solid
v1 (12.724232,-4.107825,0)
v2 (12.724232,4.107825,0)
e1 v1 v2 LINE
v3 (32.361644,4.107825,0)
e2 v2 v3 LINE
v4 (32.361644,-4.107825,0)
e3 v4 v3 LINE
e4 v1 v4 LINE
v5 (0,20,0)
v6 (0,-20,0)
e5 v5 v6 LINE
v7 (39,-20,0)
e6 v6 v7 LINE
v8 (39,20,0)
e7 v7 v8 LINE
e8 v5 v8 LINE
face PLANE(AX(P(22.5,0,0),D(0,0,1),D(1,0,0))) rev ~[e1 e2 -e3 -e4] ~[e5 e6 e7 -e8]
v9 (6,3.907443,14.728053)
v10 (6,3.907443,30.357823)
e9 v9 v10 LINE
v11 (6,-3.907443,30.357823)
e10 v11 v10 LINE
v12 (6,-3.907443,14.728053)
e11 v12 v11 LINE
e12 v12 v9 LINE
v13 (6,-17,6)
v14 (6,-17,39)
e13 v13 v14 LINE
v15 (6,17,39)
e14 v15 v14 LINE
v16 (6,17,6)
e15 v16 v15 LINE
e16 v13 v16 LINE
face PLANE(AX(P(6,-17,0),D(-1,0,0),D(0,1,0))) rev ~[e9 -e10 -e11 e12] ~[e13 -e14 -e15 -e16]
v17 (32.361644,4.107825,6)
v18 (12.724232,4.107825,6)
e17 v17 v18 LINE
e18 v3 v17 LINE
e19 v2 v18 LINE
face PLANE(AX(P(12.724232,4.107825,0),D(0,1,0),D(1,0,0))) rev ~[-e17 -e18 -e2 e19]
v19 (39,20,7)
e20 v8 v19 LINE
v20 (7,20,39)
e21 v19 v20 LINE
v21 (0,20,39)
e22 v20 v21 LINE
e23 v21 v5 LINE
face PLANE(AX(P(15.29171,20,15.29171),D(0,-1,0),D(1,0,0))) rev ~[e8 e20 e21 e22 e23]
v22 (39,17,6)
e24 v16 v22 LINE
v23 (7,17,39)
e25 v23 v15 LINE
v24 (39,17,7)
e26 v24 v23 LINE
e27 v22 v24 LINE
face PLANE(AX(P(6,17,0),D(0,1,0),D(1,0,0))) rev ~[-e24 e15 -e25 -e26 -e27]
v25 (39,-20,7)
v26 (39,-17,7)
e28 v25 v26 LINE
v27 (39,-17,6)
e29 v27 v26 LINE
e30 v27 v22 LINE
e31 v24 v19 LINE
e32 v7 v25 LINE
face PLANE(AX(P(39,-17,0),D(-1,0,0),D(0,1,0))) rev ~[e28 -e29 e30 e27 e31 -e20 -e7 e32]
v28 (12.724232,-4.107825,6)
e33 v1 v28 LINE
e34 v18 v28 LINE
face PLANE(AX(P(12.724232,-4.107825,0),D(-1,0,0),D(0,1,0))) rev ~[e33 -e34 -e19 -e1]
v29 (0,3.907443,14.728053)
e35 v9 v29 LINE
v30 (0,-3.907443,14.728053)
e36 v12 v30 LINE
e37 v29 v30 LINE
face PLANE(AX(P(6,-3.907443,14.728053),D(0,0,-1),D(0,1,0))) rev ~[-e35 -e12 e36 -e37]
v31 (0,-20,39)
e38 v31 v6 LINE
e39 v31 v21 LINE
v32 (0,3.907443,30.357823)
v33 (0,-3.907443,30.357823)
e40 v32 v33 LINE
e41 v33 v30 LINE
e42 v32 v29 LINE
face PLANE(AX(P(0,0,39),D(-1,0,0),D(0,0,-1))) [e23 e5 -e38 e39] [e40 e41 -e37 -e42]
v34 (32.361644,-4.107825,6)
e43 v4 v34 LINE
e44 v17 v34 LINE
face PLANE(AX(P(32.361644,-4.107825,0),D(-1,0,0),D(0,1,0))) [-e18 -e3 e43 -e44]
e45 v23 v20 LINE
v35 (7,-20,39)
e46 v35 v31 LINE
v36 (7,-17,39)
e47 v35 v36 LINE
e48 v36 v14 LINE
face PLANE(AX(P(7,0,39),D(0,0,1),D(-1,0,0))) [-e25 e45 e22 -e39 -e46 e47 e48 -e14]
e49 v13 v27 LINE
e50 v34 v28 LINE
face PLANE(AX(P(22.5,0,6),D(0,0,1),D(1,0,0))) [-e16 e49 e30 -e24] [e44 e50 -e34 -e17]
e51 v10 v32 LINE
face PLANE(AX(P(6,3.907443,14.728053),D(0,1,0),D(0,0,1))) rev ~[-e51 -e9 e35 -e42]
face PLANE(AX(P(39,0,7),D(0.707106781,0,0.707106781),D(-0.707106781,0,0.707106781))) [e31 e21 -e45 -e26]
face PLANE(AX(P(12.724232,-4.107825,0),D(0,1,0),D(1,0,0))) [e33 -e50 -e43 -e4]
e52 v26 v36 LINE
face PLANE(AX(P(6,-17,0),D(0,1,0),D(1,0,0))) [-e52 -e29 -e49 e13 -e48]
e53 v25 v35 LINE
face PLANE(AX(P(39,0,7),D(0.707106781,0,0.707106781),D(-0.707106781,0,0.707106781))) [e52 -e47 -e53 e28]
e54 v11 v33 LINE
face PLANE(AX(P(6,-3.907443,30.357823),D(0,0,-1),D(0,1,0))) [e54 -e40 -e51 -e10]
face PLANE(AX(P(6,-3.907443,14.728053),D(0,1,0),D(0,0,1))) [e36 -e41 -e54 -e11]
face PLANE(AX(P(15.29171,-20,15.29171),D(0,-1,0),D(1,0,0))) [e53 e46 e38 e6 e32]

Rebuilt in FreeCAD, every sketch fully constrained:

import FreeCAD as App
import Part
import Sketcher

doc = App.newDocument("Part")
body = doc.addObject("PartDesign::Body", "Body")

sketch1 = body.newObject("Sketcher::SketchObject", "Sketch")
sketch1.AttachmentSupport = (doc.getObject("XZ_Plane"), [""])
sketch1.MapMode = "FlatFace"
sketch1.addGeometry(Part.LineSegment(App.Vector(0, 39, 0), App.Vector(0, 0, 0)), False)
sketch1.addGeometry(Part.LineSegment(App.Vector(0, 0, 0), App.Vector(39, 0, 0)), False)
sketch1.addGeometry(Part.LineSegment(App.Vector(39, 0, 0), App.Vector(39, 7, 0)), False)
sketch1.addGeometry(Part.LineSegment(App.Vector(39, 7, 0), App.Vector(7, 39, 0)), False)
sketch1.addGeometry(Part.LineSegment(App.Vector(7, 39, 0), App.Vector(0, 39, 0)), False)
sketch1.addConstraint(Sketcher.Constraint("Coincident", 0, 2, 1, 1))
sketch1.addConstraint(Sketcher.Constraint("Coincident", 1, 2, 2, 1))
sketch1.addConstraint(Sketcher.Constraint("Coincident", 2, 2, 3, 1))
sketch1.addConstraint(Sketcher.Constraint("Coincident", 3, 2, 4, 1))
sketch1.addConstraint(Sketcher.Constraint("Coincident", 4, 2, 0, 1))
sketch1.addConstraint(Sketcher.Constraint("Vertical", 0))
sketch1.addConstraint(Sketcher.Constraint("Horizontal", 1))
sketch1.addConstraint(Sketcher.Constraint("Vertical", 2))
sketch1.addConstraint(Sketcher.Constraint("Horizontal", 4))
sketch1.addConstraint(Sketcher.Constraint("Coincident", 0, 2, -1, 1))
sketch1.addConstraint(Sketcher.Constraint("Equal", 1, 0))
sketch1.addConstraint(Sketcher.Constraint("Equal", 4, 2))
sketch1.addConstraint(Sketcher.Constraint("DistanceX", 1, 1, 1, 2, 39.0))
sketch1.addConstraint(Sketcher.Constraint("DistanceX", 4, 2, 4, 1, 7.0))
pad1 = body.newObject("PartDesign::Pad", "Pad")
pad1.Profile = sketch1
pad1.Length = 40
pad1.Midplane = True

sketch2 = body.newObject("Sketcher::SketchObject", "Sketch001")
sketch2.AttachmentSupport = (doc.getObject("XY_Plane"), [""])
sketch2.MapMode = "FlatFace"
sketch2.addGeometry(Part.LineSegment(App.Vector(6, 17, 0), App.Vector(6, -17, 0)), False)
sketch2.addGeometry(Part.LineSegment(App.Vector(6, -17, 0), App.Vector(39, -17, 0)), False)
sketch2.addGeometry(Part.LineSegment(App.Vector(39, -17, 0), App.Vector(39, 17, 0)), False)
sketch2.addGeometry(Part.LineSegment(App.Vector(39, 17, 0), App.Vector(6, 17, 0)), False)
sketch2.addConstraint(Sketcher.Constraint("Coincident", 0, 2, 1, 1))
sketch2.addConstraint(Sketcher.Constraint("Coincident", 1, 2, 2, 1))
sketch2.addConstraint(Sketcher.Constraint("Coincident", 2, 2, 3, 1))
sketch2.addConstraint(Sketcher.Constraint("Coincident", 3, 2, 0, 1))
sketch2.addConstraint(Sketcher.Constraint("Vertical", 0))
sketch2.addConstraint(Sketcher.Constraint("Horizontal", 1))
sketch2.addConstraint(Sketcher.Constraint("Vertical", 2))
sketch2.addConstraint(Sketcher.Constraint("Horizontal", 3))
sketch2.addConstraint(Sketcher.Constraint("DistanceX", 1, 1, 1, 2, 33.0))
sketch2.addConstraint(Sketcher.Constraint("DistanceY", 0, 2, 0, 1, 34.0))
sketch2.addConstraint(Sketcher.Constraint("DistanceX", -1, 1, 0, 2, 6.0))
sketch2.addConstraint(Sketcher.Constraint("DistanceY", 0, 2, -1, 1, 17.0))
pocket1 = body.newObject("PartDesign::Pocket", "Pocket")
pocket1.Profile = sketch2
pocket1.Type = "ThroughAll"
pocket1.Reversed = True

sketch3 = body.newObject("Sketcher::SketchObject", "Sketch002")
sketch3.AttachmentSupport = (doc.getObject("XY_Plane"), [""])
sketch3.MapMode = "FlatFace"
sketch3.addGeometry(Part.LineSegment(App.Vector(6, 17, 0), App.Vector(6, -17, 0)), False)
sketch3.addGeometry(Part.LineSegment(App.Vector(6, -17, 0), App.Vector(39, -17, 0)), False)
sketch3.addGeometry(Part.LineSegment(App.Vector(39, -17, 0), App.Vector(39, 17, 0)), False)
sketch3.addGeometry(Part.LineSegment(App.Vector(39, 17, 0), App.Vector(6, 17, 0)), False)
sketch3.addConstraint(Sketcher.Constraint("Coincident", 0, 2, 1, 1))
sketch3.addConstraint(Sketcher.Constraint("Coincident", 1, 2, 2, 1))
sketch3.addConstraint(Sketcher.Constraint("Coincident", 2, 2, 3, 1))
sketch3.addConstraint(Sketcher.Constraint("Coincident", 3, 2, 0, 1))
sketch3.addConstraint(Sketcher.Constraint("Vertical", 0))
sketch3.addConstraint(Sketcher.Constraint("Horizontal", 1))
sketch3.addConstraint(Sketcher.Constraint("Vertical", 2))
sketch3.addConstraint(Sketcher.Constraint("Horizontal", 3))
sketch3.addConstraint(Sketcher.Constraint("DistanceX", 1, 1, 1, 2, 33.0))
sketch3.addConstraint(Sketcher.Constraint("DistanceY", 0, 2, 0, 1, 34.0))
sketch3.addConstraint(Sketcher.Constraint("DistanceX", -1, 1, 0, 2, 6.0))
sketch3.addConstraint(Sketcher.Constraint("DistanceY", 0, 2, -1, 1, 17.0))
pad2 = body.newObject("PartDesign::Pad", "Pad001")
pad2.Profile = sketch3
pad2.Length = 6

sketch4 = body.newObject("Sketcher::SketchObject", "Sketch003")
sketch4.AttachmentSupport = (doc.getObject("YZ_Plane"), [""])
sketch4.MapMode = "FlatFace"
sketch4.AttachmentOffset = App.Placement(App.Vector(0, 0, 6), App.Rotation())
sketch4.addGeometry(Part.LineSegment(App.Vector(-4, 30, 0), App.Vector(-4, 15, 0)), False)
sketch4.addGeometry(Part.LineSegment(App.Vector(-4, 15, 0), App.Vector(4, 15, 0)), False)
sketch4.addGeometry(Part.LineSegment(App.Vector(4, 15, 0), App.Vector(4, 30, 0)), False)
sketch4.addGeometry(Part.LineSegment(App.Vector(4, 30, 0), App.Vector(-4, 30, 0)), False)
sketch4.addConstraint(Sketcher.Constraint("Coincident", 0, 2, 1, 1))
sketch4.addConstraint(Sketcher.Constraint("Coincident", 1, 2, 2, 1))
sketch4.addConstraint(Sketcher.Constraint("Coincident", 2, 2, 3, 1))
sketch4.addConstraint(Sketcher.Constraint("Coincident", 3, 2, 0, 1))
sketch4.addConstraint(Sketcher.Constraint("Vertical", 0))
sketch4.addConstraint(Sketcher.Constraint("Horizontal", 1))
sketch4.addConstraint(Sketcher.Constraint("Vertical", 2))
sketch4.addConstraint(Sketcher.Constraint("Horizontal", 3))
sketch4.addConstraint(Sketcher.Constraint("DistanceY", 0, 2, 0, 1, 15.629771))
sketch4.addConstraint(Sketcher.Constraint("DistanceX", 1, 1, 1, 2, 7.814886))
sketch4.addConstraint(Sketcher.Constraint("DistanceX", 0, 2, -1, 1, 3.907443))
sketch4.addConstraint(Sketcher.Constraint("DistanceY", -1, 1, 0, 2, 14.728053))
pocket2 = body.newObject("PartDesign::Pocket", "Pocket001")
pocket2.Profile = sketch4
pocket2.Length = 25

sketch5 = body.newObject("Sketcher::SketchObject", "Sketch004")
sketch5.AttachmentSupport = (doc.getObject("XY_Plane"), [""])
sketch5.MapMode = "FlatFace"
sketch5.addGeometry(Part.LineSegment(App.Vector(13, 4, 0), App.Vector(13, -4, 0)), False)
sketch5.addGeometry(Part.LineSegment(App.Vector(13, -4, 0), App.Vector(32, -4, 0)), False)
sketch5.addGeometry(Part.LineSegment(App.Vector(32, -4, 0), App.Vector(32, 4, 0)), False)
sketch5.addGeometry(Part.LineSegment(App.Vector(32, 4, 0), App.Vector(13, 4, 0)), False)
sketch5.addConstraint(Sketcher.Constraint("Coincident", 0, 2, 1, 1))
sketch5.addConstraint(Sketcher.Constraint("Coincident", 1, 2, 2, 1))
sketch5.addConstraint(Sketcher.Constraint("Coincident", 2, 2, 3, 1))
sketch5.addConstraint(Sketcher.Constraint("Coincident", 3, 2, 0, 1))
sketch5.addConstraint(Sketcher.Constraint("Vertical", 0))
sketch5.addConstraint(Sketcher.Constraint("Horizontal", 1))
sketch5.addConstraint(Sketcher.Constraint("Vertical", 2))
sketch5.addConstraint(Sketcher.Constraint("Horizontal", 3))
sketch5.addConstraint(Sketcher.Constraint("DistanceY", 0, 2, 0, 1, 8.21565))
sketch5.addConstraint(Sketcher.Constraint("DistanceX", 1, 1, 1, 2, 19.637413))
sketch5.addConstraint(Sketcher.Constraint("DistanceX", -1, 1, 0, 2, 12.724232))
sketch5.addConstraint(Sketcher.Constraint("DistanceY", 0, 2, -1, 1, 4.107825))
pocket3 = body.newObject("PartDesign::Pocket", "Pocket002")
pocket3.Profile = sketch5
pocket3.Type = "ThroughAll"
pocket3.Reversed = True

doc.recompute()
